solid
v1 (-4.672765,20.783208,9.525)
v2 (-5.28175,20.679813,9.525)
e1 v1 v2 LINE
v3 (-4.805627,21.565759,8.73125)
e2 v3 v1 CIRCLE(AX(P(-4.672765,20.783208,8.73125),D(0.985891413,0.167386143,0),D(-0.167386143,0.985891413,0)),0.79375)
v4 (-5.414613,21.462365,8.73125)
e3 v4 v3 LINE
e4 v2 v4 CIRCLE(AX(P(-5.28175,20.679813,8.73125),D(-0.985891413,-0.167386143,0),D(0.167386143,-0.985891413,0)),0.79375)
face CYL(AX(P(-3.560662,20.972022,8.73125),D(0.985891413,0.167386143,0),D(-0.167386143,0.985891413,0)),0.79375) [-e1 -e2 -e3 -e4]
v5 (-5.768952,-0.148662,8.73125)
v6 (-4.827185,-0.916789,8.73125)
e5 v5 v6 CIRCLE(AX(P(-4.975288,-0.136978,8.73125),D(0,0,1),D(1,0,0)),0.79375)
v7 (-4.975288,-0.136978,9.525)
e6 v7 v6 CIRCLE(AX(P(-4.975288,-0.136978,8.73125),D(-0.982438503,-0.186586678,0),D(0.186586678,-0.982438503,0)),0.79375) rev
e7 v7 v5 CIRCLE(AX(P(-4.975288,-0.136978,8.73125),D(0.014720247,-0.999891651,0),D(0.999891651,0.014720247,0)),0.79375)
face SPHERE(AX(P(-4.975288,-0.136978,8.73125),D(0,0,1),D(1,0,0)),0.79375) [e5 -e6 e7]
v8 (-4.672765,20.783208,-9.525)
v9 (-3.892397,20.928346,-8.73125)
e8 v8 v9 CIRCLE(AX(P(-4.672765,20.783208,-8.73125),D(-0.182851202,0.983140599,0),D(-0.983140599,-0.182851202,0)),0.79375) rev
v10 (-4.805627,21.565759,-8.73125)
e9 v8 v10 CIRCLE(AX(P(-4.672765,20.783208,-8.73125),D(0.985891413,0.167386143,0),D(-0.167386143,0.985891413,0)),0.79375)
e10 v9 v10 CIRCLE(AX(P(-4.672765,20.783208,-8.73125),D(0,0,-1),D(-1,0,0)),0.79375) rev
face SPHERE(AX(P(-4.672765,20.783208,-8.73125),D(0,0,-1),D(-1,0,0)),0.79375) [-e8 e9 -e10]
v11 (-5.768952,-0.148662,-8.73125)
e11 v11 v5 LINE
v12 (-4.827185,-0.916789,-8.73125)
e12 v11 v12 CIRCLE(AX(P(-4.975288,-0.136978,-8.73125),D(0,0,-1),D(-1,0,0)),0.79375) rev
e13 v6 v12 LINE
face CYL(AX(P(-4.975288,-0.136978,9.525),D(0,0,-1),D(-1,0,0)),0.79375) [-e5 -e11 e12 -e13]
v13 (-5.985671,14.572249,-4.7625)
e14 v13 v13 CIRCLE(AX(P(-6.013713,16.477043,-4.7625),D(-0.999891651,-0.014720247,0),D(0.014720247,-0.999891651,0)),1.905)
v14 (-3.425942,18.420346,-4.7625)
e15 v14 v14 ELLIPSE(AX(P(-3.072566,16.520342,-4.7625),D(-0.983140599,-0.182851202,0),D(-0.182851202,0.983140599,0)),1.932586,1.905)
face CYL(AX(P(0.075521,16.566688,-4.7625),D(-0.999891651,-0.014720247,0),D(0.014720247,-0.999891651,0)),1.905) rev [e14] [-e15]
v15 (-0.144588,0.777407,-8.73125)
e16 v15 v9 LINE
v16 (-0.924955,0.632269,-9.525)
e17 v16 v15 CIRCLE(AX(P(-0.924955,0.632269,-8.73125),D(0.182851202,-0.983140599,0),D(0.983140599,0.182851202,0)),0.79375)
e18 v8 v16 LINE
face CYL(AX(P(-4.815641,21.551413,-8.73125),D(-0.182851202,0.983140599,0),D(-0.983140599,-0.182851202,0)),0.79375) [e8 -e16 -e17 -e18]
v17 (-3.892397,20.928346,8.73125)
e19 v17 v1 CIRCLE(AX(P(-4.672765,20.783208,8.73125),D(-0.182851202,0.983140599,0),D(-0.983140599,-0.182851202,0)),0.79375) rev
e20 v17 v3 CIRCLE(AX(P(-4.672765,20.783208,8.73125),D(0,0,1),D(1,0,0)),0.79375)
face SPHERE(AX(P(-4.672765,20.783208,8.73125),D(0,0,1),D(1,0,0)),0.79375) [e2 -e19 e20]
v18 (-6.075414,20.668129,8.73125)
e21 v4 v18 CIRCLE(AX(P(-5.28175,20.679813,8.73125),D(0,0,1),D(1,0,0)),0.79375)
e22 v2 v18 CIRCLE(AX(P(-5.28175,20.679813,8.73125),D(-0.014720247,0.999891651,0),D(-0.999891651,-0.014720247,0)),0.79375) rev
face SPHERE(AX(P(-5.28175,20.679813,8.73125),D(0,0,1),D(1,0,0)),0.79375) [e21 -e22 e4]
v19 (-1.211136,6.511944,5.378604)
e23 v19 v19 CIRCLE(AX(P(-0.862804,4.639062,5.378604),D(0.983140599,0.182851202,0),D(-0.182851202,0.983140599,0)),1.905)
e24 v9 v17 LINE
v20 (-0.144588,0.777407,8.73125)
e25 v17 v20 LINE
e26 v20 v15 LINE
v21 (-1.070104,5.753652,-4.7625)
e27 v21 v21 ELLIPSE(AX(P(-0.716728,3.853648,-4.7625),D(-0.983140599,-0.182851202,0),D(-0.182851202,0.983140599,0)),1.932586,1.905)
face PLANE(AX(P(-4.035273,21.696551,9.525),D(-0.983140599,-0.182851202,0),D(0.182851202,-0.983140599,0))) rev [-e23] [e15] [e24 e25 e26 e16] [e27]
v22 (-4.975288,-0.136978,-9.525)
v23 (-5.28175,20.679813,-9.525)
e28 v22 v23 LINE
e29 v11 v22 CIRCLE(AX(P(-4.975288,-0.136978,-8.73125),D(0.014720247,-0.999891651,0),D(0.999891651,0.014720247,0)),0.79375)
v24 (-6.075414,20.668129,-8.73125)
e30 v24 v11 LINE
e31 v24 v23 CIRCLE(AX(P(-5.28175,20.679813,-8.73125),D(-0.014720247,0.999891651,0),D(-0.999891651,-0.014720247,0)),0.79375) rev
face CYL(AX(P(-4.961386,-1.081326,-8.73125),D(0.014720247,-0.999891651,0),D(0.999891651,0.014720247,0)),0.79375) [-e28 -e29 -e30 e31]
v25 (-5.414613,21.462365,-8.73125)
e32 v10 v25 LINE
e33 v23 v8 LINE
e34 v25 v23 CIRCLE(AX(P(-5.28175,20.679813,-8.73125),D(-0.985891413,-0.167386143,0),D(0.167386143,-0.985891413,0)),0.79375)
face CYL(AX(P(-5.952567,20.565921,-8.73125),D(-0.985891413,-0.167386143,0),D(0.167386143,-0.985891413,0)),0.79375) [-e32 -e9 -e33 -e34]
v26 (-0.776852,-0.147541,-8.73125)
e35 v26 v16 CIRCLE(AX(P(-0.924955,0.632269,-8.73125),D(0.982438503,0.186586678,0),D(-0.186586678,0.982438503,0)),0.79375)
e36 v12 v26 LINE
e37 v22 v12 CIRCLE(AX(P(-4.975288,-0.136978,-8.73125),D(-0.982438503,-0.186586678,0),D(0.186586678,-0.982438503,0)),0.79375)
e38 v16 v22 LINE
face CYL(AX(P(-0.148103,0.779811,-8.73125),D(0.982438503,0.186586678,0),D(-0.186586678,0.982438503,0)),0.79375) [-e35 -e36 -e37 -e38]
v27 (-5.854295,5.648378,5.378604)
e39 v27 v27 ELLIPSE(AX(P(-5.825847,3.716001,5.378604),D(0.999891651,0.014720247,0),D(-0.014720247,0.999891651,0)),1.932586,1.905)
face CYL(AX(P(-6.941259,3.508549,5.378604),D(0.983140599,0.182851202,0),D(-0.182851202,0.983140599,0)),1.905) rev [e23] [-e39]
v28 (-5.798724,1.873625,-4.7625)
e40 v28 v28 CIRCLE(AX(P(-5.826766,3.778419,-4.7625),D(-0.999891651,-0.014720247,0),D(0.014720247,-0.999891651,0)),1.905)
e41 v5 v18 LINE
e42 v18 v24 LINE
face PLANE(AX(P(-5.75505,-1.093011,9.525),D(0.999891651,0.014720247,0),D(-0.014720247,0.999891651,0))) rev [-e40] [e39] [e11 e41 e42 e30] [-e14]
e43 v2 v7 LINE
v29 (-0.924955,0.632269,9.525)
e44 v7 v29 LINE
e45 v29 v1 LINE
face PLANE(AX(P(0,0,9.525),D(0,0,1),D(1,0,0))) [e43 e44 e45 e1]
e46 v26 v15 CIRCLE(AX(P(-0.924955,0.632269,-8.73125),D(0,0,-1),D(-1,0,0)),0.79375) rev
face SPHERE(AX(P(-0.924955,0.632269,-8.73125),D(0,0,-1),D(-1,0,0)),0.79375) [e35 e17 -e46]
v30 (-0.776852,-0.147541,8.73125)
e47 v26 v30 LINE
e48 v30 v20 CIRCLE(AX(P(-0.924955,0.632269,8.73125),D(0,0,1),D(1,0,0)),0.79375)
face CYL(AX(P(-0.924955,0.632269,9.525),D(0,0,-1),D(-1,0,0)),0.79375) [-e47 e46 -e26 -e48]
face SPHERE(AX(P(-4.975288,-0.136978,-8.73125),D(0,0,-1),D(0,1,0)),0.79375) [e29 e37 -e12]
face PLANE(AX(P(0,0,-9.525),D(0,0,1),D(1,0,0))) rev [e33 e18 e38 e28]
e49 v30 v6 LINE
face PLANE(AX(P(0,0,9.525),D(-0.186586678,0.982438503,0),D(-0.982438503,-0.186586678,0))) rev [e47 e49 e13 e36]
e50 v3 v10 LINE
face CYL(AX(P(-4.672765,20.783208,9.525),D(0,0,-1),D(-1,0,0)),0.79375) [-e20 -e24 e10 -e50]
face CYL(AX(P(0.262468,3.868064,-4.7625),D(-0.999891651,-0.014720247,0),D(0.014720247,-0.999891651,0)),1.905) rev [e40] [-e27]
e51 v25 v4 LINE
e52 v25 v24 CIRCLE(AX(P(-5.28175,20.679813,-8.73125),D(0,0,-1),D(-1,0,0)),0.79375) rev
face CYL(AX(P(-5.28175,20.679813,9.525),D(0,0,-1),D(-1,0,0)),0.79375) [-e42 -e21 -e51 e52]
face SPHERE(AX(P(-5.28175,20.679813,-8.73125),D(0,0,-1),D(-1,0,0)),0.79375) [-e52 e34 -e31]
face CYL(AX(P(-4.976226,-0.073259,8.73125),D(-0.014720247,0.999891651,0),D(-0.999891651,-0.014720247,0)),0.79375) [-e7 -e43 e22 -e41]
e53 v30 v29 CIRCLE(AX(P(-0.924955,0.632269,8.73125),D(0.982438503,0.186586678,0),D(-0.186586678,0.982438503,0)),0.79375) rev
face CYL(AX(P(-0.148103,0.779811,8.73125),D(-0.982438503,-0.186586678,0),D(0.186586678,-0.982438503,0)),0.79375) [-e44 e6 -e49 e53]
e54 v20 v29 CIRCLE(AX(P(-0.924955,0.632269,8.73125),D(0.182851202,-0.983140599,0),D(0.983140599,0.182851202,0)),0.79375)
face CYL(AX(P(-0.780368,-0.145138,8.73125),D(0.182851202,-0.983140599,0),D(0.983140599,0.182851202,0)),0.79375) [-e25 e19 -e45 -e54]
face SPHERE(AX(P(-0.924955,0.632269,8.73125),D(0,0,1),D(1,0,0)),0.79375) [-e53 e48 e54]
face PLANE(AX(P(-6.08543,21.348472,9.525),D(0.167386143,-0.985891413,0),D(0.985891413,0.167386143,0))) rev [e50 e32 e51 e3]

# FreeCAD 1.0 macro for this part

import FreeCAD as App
import Part
import Sketcher
Q = App.Units.Quantity


def edges_at(feature, points):
    """Names of the edges that pass closest to the given points."""
    edges = feature.Shape.Edges
    near = lambda p: min(range(len(edges)), key=lambda i: edges[i].distToShape(Part.Vertex(*p))[0])
    return sorted({f"Edge{near(p) + 1}" for p in points})

doc = App.newDocument("Part")
body = doc.addObject("PartDesign::Body", "Body")

sketch1 = body.newObject("Sketcher::SketchObject", "Sketch")
sketch1.AttachmentSupport = (doc.getObject("XY_Plane"), [""])
sketch1.MapMode = "FlatFace"
sketch1.addGeometry(Part.LineSegment(App.Vector(-6.1, 21.3, 0), App.Vector(-5.8, -1.1, 0)), False)
sketch1.addGeometry(Part.LineSegment(App.Vector(-5.8, -1.1, 0), App.Vector(0, 0, 0)), False)
sketch1.addGeometry(Part.LineSegment(App.Vector(0, 0, 0), App.Vector(-4, 21.7, 0)), False)
sketch1.addGeometry(Part.LineSegment(App.Vector(-4, 21.7, 0), App.Vector(-6.1, 21.3, 0)), False)
sketch1.addConstraint(Sketcher.Constraint("Coincident", 0, 2, 1, 1))
sketch1.addConstraint(Sketcher.Constraint("Coincident", 1, 2, 2, 1))
sketch1.addConstraint(Sketcher.Constraint("Coincident", 2, 2, 3, 1))
sketch1.addConstraint(Sketcher.Constraint("Coincident", 3, 2, 0, 1))
sketch1.addConstraint(Sketcher.Constraint("Coincident", 1, 2, -1, 1))
sketch1.addConstraint(Sketcher.Constraint("DistanceX", 0, 2, -1, 1, 5.75505))
sketch1.addConstraint(Sketcher.Constraint("DistanceY", 0, 2, -1, 1, 1.093011))
sketch1.addConstraint(Sketcher.Constraint("DistanceY", -1, 1, 2, 2, 21.696551))
sketch1.addConstraint(Sketcher.Constraint("DistanceX", 3, 2, -1, 1, 6.08543))
sketch1.addConstraint(Sketcher.Constraint("DistanceY", 3, 2, 2, 2, 0.348079))
sketch1.addConstraint(Sketcher.Constraint("Distance", 2, 22.068615))
pad1 = body.newObject("PartDesign::Pad", "Pad")
pad1.Profile = sketch1
pad1.Length = Q("0.75 in")
pad1.Midplane = True

sketch2 = body.newObject("Sketcher::SketchObject", "Sketch001")
sketch2.Placement = App.Placement(App.Vector(-5.76989, -0.084943, 0), App.Rotation(App.Vector(0, 0, 1), App.Vector(-0.014720247, 0.999891651, 0), App.Vector(-0.999891651, -0.014720247, 0), "ZXY"))
sketch2.addGeometry(Part.Circle(App.Vector(-4.8, 3.9, 0), App.Vector(0, 0, 1), 1.9), False)
sketch2.addGeometry(Part.Circle(App.Vector(-4.8, 16.6, 0), App.Vector(0, 0, 1), 1.9), False)
sketch2.addConstraint(Sketcher.Constraint("Equal", 0, 1))
sketch2.addConstraint(Sketcher.Constraint("Vertical", 0, 3, 1, 3))
sketch2.addConstraint(Sketcher.Constraint("Diameter", 0, Q("0.15 in")))
sketch2.addConstraint(Sketcher.Constraint("DistanceY", 0, 3, 1, 3, Q("0.5 in")))
sketch2.addConstraint(Sketcher.Constraint("DistanceX", 0, 3, -1, 1, Q("0.1875 in")))
sketch2.addConstraint(Sketcher.Constraint("DistanceY", -1, 1, 0, 3, 3.863781))
pocket1 = body.newObject("PartDesign::Pocket", "Pocket")
pocket1.Profile = sketch2
pocket1.Type = "ThroughAll"

sketch3 = body.newObject("Sketcher::SketchObject", "Sketch002")
sketch3.Placement = App.Placement(App.Vector(0, 0, 0), App.Rotation(App.Vector(0, 0, -1), App.Vector(-0.182851202, 0.983140599, 0), App.Vector(0.983140599, 0.182851202, 0), "ZXY"))
sketch3.addGeometry(Part.Circle(App.Vector(-5.4, 4.7, 0), App.Vector(0, 0, 1), 1.9), False)
sketch3.addConstraint(Sketcher.Constraint("Diameter", 0, Q("0.15 in")))
sketch3.addConstraint(Sketcher.Constraint("DistanceX", 0, 3, -1, 1, 5.378604))
sketch3.addConstraint(Sketcher.Constraint("DistanceY", -1, 1, 0, 3, 4.718615))
pocket2 = body.newObject("PartDesign::Pocket", "Pocket001")
pocket2.Profile = sketch3
pocket2.Type = "ThroughAll"
doc.recompute()

fillet = body.newObject("PartDesign::Fillet", "Fillet")
fillet.Base = (pocket2, edges_at(pocket2, [
    (-5.06, 21.523, 9.525),
    (-5.92, 10.128, 9.525),
    (-2.878, -0.547, 9.525),
    (-5.92, 10.128, -9.525),
    (-5.06, 21.523, -9.525),
    (-2.018, 10.848, -9.525),
    (-2.878, -0.547, -9.525),
    (-5.755, -1.093, 0),
    (-6.085, 21.348, 0),
    (-4.035, 21.697, 0),
    (0, 0, 0),
    (-2.018, 10.848, 9.525),
]))
fillet.Radius = Q("0.03125 in")

doc.recompute()
